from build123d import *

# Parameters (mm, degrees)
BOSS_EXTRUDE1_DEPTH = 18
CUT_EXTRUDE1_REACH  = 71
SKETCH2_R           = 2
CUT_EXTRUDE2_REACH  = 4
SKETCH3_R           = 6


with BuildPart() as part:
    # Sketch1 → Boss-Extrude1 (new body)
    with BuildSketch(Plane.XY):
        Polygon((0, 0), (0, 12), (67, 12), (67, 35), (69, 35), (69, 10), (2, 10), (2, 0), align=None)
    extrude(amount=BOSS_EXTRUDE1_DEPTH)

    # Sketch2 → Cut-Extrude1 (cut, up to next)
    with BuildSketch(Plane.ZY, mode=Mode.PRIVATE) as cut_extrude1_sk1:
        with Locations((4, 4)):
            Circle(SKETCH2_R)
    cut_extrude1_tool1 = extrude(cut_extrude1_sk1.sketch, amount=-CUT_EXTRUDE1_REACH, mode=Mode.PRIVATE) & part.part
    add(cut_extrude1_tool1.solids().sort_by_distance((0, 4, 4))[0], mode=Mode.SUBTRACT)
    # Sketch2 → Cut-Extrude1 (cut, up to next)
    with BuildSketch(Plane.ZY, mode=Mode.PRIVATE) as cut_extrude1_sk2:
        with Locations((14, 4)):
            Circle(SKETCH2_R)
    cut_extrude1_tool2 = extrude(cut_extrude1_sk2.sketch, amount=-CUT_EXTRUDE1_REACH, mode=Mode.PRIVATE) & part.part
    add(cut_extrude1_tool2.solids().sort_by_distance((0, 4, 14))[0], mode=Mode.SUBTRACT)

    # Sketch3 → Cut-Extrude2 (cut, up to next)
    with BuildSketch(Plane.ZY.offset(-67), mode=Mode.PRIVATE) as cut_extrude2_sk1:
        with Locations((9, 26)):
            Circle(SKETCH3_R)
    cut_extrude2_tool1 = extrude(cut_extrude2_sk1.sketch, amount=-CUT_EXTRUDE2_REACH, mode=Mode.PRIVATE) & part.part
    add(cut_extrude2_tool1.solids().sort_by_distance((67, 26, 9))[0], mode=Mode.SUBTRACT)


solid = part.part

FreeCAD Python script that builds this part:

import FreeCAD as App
import Part
import Sketcher
from FreeCAD import Vector
Q = App.Units.Quantity

doc = App.newDocument("Part")
body = doc.addObject("PartDesign::Body", "Body")

# Sketch on XY plane
sketch1 = body.newObject("Sketcher::SketchObject", "Sketch")
sketch1.AttachmentSupport = (doc.getObject("XY_Plane"), [""])
sketch1.MapMode = "FlatFace"
sketch1.addGeometry(Part.LineSegment(Vector(0, 12, 0), Vector(0, 0, 0)), False)
sketch1.addGeometry(Part.LineSegment(Vector(0, 0, 0), Vector(2, 0, 0)), False)
sketch1.addGeometry(Part.LineSegment(Vector(2, 0, 0), Vector(2, 10, 0)), False)
sketch1.addGeometry(Part.LineSegment(Vector(2, 10, 0), Vector(69, 10, 0)), False)
sketch1.addGeometry(Part.LineSegment(Vector(69, 10, 0), Vector(69, 35, 0)), False)
sketch1.addGeometry(Part.LineSegment(Vector(69, 35, 0), Vector(67, 35, 0)), False)
sketch1.addGeometry(Part.LineSegment(Vector(67, 35, 0), Vector(67, 12, 0)), False)
sketch1.addGeometry(Part.LineSegment(Vector(67, 12, 0), Vector(0, 12, 0)), False)
sketch1.addConstraint(Sketcher.Constraint("Coincident", 0, 2, 1, 1))
sketch1.addConstraint(Sketcher.Constraint("Coincident", 1, 2, 2, 1))
sketch1.addConstraint(Sketcher.Constraint("Coincident", 2, 2, 3, 1))
sketch1.addConstraint(Sketcher.Constraint("Coincident", 3, 2, 4, 1))
sketch1.addConstraint(Sketcher.Constraint("Coincident", 4, 2, 5, 1))
sketch1.addConstraint(Sketcher.Constraint("Coincident", 5, 2, 6, 1))
sketch1.addConstraint(Sketcher.Constraint("Coincident", 6, 2, 7, 1))
sketch1.addConstraint(Sketcher.Constraint("Coincident", 7, 2, 0, 1))
sketch1.addConstraint(Sketcher.Constraint("Vertical", 0))
sketch1.addConstraint(Sketcher.Constraint("Horizontal", 1))
sketch1.addConstraint(Sketcher.Constraint("Vertical", 2))
sketch1.addConstraint(Sketcher.Constraint("Horizontal", 3))
sketch1.addConstraint(Sketcher.Constraint("Vertical", 4))
sketch1.addConstraint(Sketcher.Constraint("Horizontal", 5))
sketch1.addConstraint(Sketcher.Constraint("Vertical", 6))
sketch1.addConstraint(Sketcher.Constraint("Horizontal", 7))
sketch1.addConstraint(Sketcher.Constraint("Coincident", 0, 2, -1, 1))
sketch1.addConstraint(Sketcher.Constraint("Equal", 1, 5))
sketch1.addConstraint(Sketcher.Constraint("DistanceX", 1, 1, 1, 2, Q("2 mm")))
sketch1.addConstraint(Sketcher.Constraint("DistanceX", 3, 1, 3, 2, Q("67 mm")))
sketch1.addConstraint(Sketcher.Constraint("DistanceY", 0, 2, 0, 1, Q("12 mm")))
sketch1.addConstraint(Sketcher.Constraint("DistanceY", 2, 1, 2, 2, Q("10 mm")))
sketch1.addConstraint(Sketcher.Constraint("DistanceY", 4, 1, 4, 2, Q("25 mm")))
pad1 = body.newObject("PartDesign::Pad", "Pad")
pad1.Profile = sketch1
pad1.Length = 18

# Sketch on YZ plane
sketch2 = body.newObject("Sketcher::SketchObject", "Sketch001")
sketch2.AttachmentSupport = (doc.getObject("YZ_Plane"), [""])
sketch2.MapMode = "FlatFace"
sketch2.addGeometry(Part.Circle(Vector(4, 4, 0), Vector(0, 0, 1), 2), False)
sketch2.addConstraint(Sketcher.Constraint("Diameter", 0, Q("4 mm")))
sketch2.addConstraint(Sketcher.Constraint("DistanceX", -1, 1, 0, 3, Q("4 mm")))
sketch2.addConstraint(Sketcher.Constraint("DistanceY", -1, 1, 0, 3, Q("4 mm")))
pocket1 = body.newObject("PartDesign::Pocket", "Pocket")
pocket1.Profile = sketch2
pocket1.Type = "UpToFirst"
pocket1.Reversed = True

# Sketch on YZ plane
sketch3 = body.newObject("Sketcher::SketchObject", "Sketch002")
sketch3.AttachmentSupport = (doc.getObject("YZ_Plane"), [""])
sketch3.MapMode = "FlatFace"
sketch3.addGeometry(Part.Circle(Vector(4, 14, 0), Vector(0, 0, 1), 2), False)
sketch3.addConstraint(Sketcher.Constraint("Diameter", 0, Q("4 mm")))
sketch3.addConstraint(Sketcher.Constraint("DistanceX", -1, 1, 0, 3, Q("4 mm")))
sketch3.addConstraint(Sketcher.Constraint("DistanceY", -1, 1, 0, 3, Q("14 mm")))
pocket2 = body.newObject("PartDesign::Pocket", "Pocket001")
pocket2.Profile = sketch3
pocket2.Type = "UpToFirst"
pocket2.Reversed = True

# Sketch on YZ plane
sketch4 = body.newObject("Sketcher::SketchObject", "Sketch003")
sketch4.AttachmentSupport = (doc.getObject("YZ_Plane"), [""])
sketch4.MapMode = "FlatFace"
sketch4.AttachmentOffset = App.Placement(Vector(0, 0, 67), App.Rotation())
sketch4.addGeometry(Part.Circle(Vector(26, 9, 0), Vector(0, 0, 1), 6), False)
sketch4.addConstraint(Sketcher.Constraint("Diameter", 0, Q("12 mm")))
sketch4.addConstraint(Sketcher.Constraint("DistanceX", -1, 1, 0, 3, Q("26 mm")))
sketch4.addConstraint(Sketcher.Constraint("DistanceY", -1, 1, 0, 3, Q("9 mm")))
pocket3 = body.newObject("PartDesign::Pocket", "Pocket002")
pocket3.Profile = sketch4
pocket3.Type = "UpToFirst"
pocket3.Reversed = True

doc.recompute()
